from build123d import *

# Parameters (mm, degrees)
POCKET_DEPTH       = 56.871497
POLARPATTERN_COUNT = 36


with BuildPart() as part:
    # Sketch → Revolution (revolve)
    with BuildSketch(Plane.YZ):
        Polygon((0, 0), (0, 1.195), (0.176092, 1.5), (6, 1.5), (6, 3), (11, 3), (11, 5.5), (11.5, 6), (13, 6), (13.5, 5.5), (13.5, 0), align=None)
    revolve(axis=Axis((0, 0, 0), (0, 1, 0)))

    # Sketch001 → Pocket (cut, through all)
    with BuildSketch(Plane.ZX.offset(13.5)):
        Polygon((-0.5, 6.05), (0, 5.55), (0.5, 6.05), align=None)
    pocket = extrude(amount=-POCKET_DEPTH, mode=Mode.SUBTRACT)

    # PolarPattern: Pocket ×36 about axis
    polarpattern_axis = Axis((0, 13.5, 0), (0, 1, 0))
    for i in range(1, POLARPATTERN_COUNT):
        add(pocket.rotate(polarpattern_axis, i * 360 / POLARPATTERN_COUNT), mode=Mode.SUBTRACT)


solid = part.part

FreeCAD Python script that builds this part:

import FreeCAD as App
import Part
import Sketcher
Q = App.Units.Quantity

doc = App.newDocument("Part")
body = doc.addObject("PartDesign::Body", "Body")

# Sketch on YZ plane
sketch1 = body.newObject("Sketcher::SketchObject", "Sketch")
sketch1.AttachmentSupport = (doc.getObject("YZ_Plane"), [""])
sketch1.MapMode = "FlatFace"
sketch1.addGeometry(Part.LineSegment(App.Vector(0, 1.2, 0), App.Vector(0, 0, 0)), False)
sketch1.addGeometry(Part.LineSegment(App.Vector(0, 0, 0), App.Vector(13.5, 0, 0)), False)
sketch1.addGeometry(Part.LineSegment(App.Vector(13.5, 0, 0), App.Vector(13.5, 5.5, 0)), False)
sketch1.addGeometry(Part.LineSegment(App.Vector(13.5, 5.5, 0), App.Vector(13, 6, 0)), False)
sketch1.addGeometry(Part.LineSegment(App.Vector(13, 6, 0), App.Vector(11.5, 6, 0)), False)
sketch1.addGeometry(Part.LineSegment(App.Vector(11.5, 6, 0), App.Vector(11, 5.5, 0)), False)
sketch1.addGeometry(Part.LineSegment(App.Vector(11, 5.5, 0), App.Vector(11, 3, 0)), False)
sketch1.addGeometry(Part.LineSegment(App.Vector(11, 3, 0), App.Vector(6, 3, 0)), False)
sketch1.addGeometry(Part.LineSegment(App.Vector(6, 3, 0), App.Vector(6, 1.5, 0)), False)
sketch1.addGeometry(Part.LineSegment(App.Vector(6, 1.5, 0), App.Vector(0.18, 1.5, 0)), False)
sketch1.addGeometry(Part.LineSegment(App.Vector(0.18, 1.5, 0), App.Vector(0, 1.2, 0)), False)
sketch1.addConstraint(Sketcher.Constraint("Coincident", 0, 2, 1, 1))
sketch1.addConstraint(Sketcher.Constraint("Coincident", 1, 2, 2, 1))
sketch1.addConstraint(Sketcher.Constraint("Coincident", 2, 2, 3, 1))
sketch1.addConstraint(Sketcher.Constraint("Coincident", 3, 2, 4, 1))
sketch1.addConstraint(Sketcher.Constraint("Coincident", 4, 2, 5, 1))
sketch1.addConstraint(Sketcher.Constraint("Coincident", 5, 2, 6, 1))
sketch1.addConstraint(Sketcher.Constraint("Coincident", 6, 2, 7, 1))
sketch1.addConstraint(Sketcher.Constraint("Coincident", 7, 2, 8, 1))
sketch1.addConstraint(Sketcher.Constraint("Coincident", 8, 2, 9, 1))
sketch1.addConstraint(Sketcher.Constraint("Coincident", 9, 2, 10, 1))
sketch1.addConstraint(Sketcher.Constraint("Coincident", 10, 2, 0, 1))
sketch1.addConstraint(Sketcher.Constraint("Vertical", 0))
sketch1.addConstraint(Sketcher.Constraint("Horizontal", 1))
sketch1.addConstraint(Sketcher.Constraint("Vertical", 2))
sketch1.addConstraint(Sketcher.Constraint("Horizontal", 4))
sketch1.addConstraint(Sketcher.Constraint("Vertical", 6))
sketch1.addConstraint(Sketcher.Constraint("Horizontal", 7))
sketch1.addConstraint(Sketcher.Constraint("Vertical", 8))
sketch1.addConstraint(Sketcher.Constraint("Horizontal", 9))
sketch1.addConstraint(Sketcher.Constraint("Coincident", 0, 2, -1, 1))
sketch1.addConstraint(Sketcher.Constraint("Perpendicular", 3, 5))
sketch1.addConstraint(Sketcher.Constraint("Horizontal", 2, 2, 5, 2))
sketch1.addConstraint(Sketcher.Constraint("Equal", 4, 8))
sketch1.addConstraint(Sketcher.Constraint("Equal", 3, 5))
sketch1.addConstraint(Sketcher.Constraint("DistanceX", 7, 2, 7, 1, Q("5 mm")))
sketch1.addConstraint(Sketcher.Constraint("DistanceX", 1, 1, 1, 2, Q("13.5 mm")))
sketch1.addConstraint(Sketcher.Constraint("DistanceX", 4, 2, 4, 1, Q("1.5 mm")))
sketch1.addConstraint(Sketcher.Constraint("DistanceY", 2, 1, 2, 2, Q("5.5 mm")))
sketch1.addConstraint(Sketcher.Constraint("DistanceY", 6, 2, 6, 1, Q("2.5 mm")))
sketch1.addConstraint(Sketcher.Constraint("DistanceX", -1, 1, 3, 2, Q("13 mm")))
sketch1.addConstraint(Sketcher.Constraint("DistanceY", 0, 2, 0, 1, Q("1.195 mm")))
sketch1.addConstraint(Sketcher.Constraint("DistanceX", 9, 2, 9, 1, Q("5.823908 mm")))
revolution = body.newObject("PartDesign::Revolution", "Revolution")
revolution.Profile = sketch1
revolution.ReferenceAxis = (sketch1, ["H_Axis"])
revolution.Angle = 360

# Sketch on XZ plane
sketch2 = body.newObject("Sketcher::SketchObject", "Sketch001")
sketch2.AttachmentSupport = (doc.getObject("XZ_Plane"), [""])
sketch2.MapMode = "FlatFace"
sketch2.AttachmentOffset = App.Placement(App.Vector(0, 0, -13.5), App.Rotation())
sketch2.addGeometry(Part.LineSegment(App.Vector(6, -0.5, 0), App.Vector(5.5, 0, 0)), False)
sketch2.addGeometry(Part.LineSegment(App.Vector(5.5, 0, 0), App.Vector(6, 0.5, 0)), False)
sketch2.addGeometry(Part.LineSegment(App.Vector(6, 0.5, 0), App.Vector(6, -0.5, 0)), False)
sketch2.addConstraint(Sketcher.Constraint("Coincident", 0, 2, 1, 1))
sketch2.addConstraint(Sketcher.Constraint("Coincident", 1, 2, 2, 1))
sketch2.addConstraint(Sketcher.Constraint("Coincident", 2, 2, 0, 1))
sketch2.addConstraint(Sketcher.Constraint("Vertical", 2))
sketch2.addConstraint(Sketcher.Constraint("PointOnObject", 0, 2, -1))
sketch2.addConstraint(Sketcher.Constraint("Perpendicular", 0, 1))
sketch2.addConstraint(Sketcher.Constraint("Equal", 0, 1))
sketch2.addConstraint(Sketcher.Constraint("DistanceY", 2, 2, 2, 1, Q("1 mm")))
sketch2.addConstraint(Sketcher.Constraint("DistanceX", -1, 1, 0, 2, Q("5.55 mm")))
pocket1 = body.newObject("PartDesign::Pocket", "Pocket")
pocket1.Profile = sketch2
pocket1.Type = "ThroughAll"
pocket1.Reversed = True
doc.recompute()

polarpattern = body.newObject("PartDesign::PolarPattern", "PolarPattern")
polarpattern.Originals = [pocket1]
polarpattern.Axis = (doc.getObject("Y_Axis"), [""])
polarpattern.Angle = 360
polarpattern.Occurrences = 36
body.Tip = polarpattern

doc.recompute()
